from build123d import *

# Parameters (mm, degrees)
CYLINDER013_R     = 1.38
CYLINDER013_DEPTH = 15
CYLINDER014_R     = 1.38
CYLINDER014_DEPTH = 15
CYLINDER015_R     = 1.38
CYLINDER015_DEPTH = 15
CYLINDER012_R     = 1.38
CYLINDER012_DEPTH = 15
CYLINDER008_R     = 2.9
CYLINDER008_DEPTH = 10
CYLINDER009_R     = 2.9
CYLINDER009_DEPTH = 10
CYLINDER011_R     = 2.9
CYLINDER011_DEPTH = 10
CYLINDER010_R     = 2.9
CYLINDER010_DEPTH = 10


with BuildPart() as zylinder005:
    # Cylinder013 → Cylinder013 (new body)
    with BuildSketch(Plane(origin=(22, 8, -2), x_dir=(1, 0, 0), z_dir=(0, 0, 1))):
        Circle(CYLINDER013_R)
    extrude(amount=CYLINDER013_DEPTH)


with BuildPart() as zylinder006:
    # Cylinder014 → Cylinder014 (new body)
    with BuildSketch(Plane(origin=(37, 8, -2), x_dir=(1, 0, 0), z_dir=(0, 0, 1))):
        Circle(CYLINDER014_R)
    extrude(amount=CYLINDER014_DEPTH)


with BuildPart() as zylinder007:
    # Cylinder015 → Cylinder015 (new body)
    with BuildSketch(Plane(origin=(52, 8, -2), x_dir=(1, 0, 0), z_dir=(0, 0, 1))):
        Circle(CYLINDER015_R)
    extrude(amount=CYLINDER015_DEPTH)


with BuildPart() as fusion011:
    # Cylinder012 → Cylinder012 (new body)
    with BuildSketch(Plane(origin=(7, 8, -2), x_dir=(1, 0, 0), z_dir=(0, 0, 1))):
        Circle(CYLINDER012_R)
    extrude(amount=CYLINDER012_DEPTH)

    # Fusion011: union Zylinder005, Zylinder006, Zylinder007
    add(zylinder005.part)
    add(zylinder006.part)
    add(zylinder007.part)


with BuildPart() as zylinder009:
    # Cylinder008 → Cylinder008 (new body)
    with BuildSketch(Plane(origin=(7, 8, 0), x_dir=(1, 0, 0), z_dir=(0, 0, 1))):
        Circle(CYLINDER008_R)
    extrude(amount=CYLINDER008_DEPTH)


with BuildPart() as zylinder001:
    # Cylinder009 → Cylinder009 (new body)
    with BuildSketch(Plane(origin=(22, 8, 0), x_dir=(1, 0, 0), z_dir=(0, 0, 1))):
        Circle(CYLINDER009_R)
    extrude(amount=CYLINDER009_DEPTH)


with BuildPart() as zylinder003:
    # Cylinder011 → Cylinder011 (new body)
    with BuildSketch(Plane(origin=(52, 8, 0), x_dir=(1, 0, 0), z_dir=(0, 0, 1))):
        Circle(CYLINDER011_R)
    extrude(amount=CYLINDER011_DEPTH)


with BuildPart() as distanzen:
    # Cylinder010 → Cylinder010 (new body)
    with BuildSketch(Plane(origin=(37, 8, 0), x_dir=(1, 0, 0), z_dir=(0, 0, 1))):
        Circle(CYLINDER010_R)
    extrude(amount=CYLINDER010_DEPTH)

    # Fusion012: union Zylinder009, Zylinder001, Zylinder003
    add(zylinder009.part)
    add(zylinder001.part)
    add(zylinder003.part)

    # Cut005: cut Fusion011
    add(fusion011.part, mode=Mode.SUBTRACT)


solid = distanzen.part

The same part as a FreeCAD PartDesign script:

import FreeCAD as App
import Part
import Sketcher

doc = App.newDocument("Part")
params = doc.addObject("Spreadsheet::Sheet", "Params")
for row, (alias, value) in enumerate([
    ("sketch1_diameter", "2.76 mm"),
    ("pad1_length", "15 mm"),
    ("sketch2_diameter", "2.76 mm"),
    ("pad2_length", "15 mm"),
    ("sketch3_diameter", "2.76 mm"),
    ("pad3_length", "15 mm"),
    ("sketch4_diameter", "2.76 mm"),
    ("pad4_length", "15 mm"),
    ("sketch5_diameter", "5.8 mm"),
    ("pad5_length", "10 mm"),
    ("sketch6_diameter", "5.8 mm"),
    ("pad6_length", "10 mm"),
    ("sketch7_diameter", "5.8 mm"),
    ("pad7_length", "10 mm"),
    ("sketch8_diameter", "5.8 mm"),
    ("pad8_length", "10 mm"),
], start=1):
    params.set(f"A{row}", alias)
    params.set(f"B{row}", "=" + value)
    params.setAlias(f"B{row}", alias)

body = doc.addObject("PartDesign::Body", "Body")

# Sketch on XY plane
sketch1 = body.newObject("Sketcher::SketchObject", "Sketch")
sketch1.AttachmentSupport = (doc.getObject("XY_Plane"), [""])
sketch1.MapMode = "FlatFace"
sketch1.AttachmentOffset = App.Placement(App.Vector(0, 0, -2), App.Rotation())
sketch1.addGeometry(Part.Circle(App.Vector(22, 8, 0), App.Vector(0, 0, 1), 1.38), False)
sketch1.addConstraint([
    Sketcher.Constraint("Diameter", 0, 2.76),
    Sketcher.Constraint("DistanceX", -1, 1, 0, 3, 22.0),
    Sketcher.Constraint("DistanceY", -1, 1, 0, 3, 8.0),
])
sketch1.setExpression("Constraints[0]", "Params.sketch1_diameter")
pad1 = body.newObject("PartDesign::Pad", "Pad")
pad1.Profile = sketch1
pad1.setExpression("Length", "Params.pad1_length")
body2 = doc.addObject("PartDesign::Body", "Body001")

# Sketch on XY plane
sketch2 = body2.newObject("Sketcher::SketchObject", "Sketch001")
sketch2.AttachmentSupport = (doc.getObject("XY_Plane001"), [""])
sketch2.MapMode = "FlatFace"
sketch2.AttachmentOffset = App.Placement(App.Vector(0, 0, -2), App.Rotation())
sketch2.addGeometry(Part.Circle(App.Vector(37, 8, 0), App.Vector(0, 0, 1), 1.38), False)
sketch2.addConstraint([
    Sketcher.Constraint("Diameter", 0, 2.76),
    Sketcher.Constraint("DistanceX", -1, 1, 0, 3, 37.0),
    Sketcher.Constraint("DistanceY", -1, 1, 0, 3, 8.0),
])
sketch2.setExpression("Constraints[0]", "Params.sketch2_diameter")
pad2 = body2.newObject("PartDesign::Pad", "Pad001")
pad2.Profile = sketch2
pad2.setExpression("Length", "Params.pad2_length")
body3 = doc.addObject("PartDesign::Body", "Body002")

# Sketch on XY plane
sketch3 = body3.newObject("Sketcher::SketchObject", "Sketch002")
sketch3.AttachmentSupport = (doc.getObject("XY_Plane002"), [""])
sketch3.MapMode = "FlatFace"
sketch3.AttachmentOffset = App.Placement(App.Vector(0, 0, -2), App.Rotation())
sketch3.addGeometry(Part.Circle(App.Vector(52, 8, 0), App.Vector(0, 0, 1), 1.38), False)
sketch3.addConstraint([
    Sketcher.Constraint("Diameter", 0, 2.76),
    Sketcher.Constraint("DistanceX", -1, 1, 0, 3, 52.0),
    Sketcher.Constraint("DistanceY", -1, 1, 0, 3, 8.0),
])
sketch3.setExpression("Constraints[0]", "Params.sketch3_diameter")
pad3 = body3.newObject("PartDesign::Pad", "Pad002")
pad3.Profile = sketch3
pad3.setExpression("Length", "Params.pad3_length")
body4 = doc.addObject("PartDesign::Body", "Body003")
body4.AllowCompound = True

# Sketch on XY plane
sketch4 = body4.newObject("Sketcher::SketchObject", "Sketch003")
sketch4.AttachmentSupport = (doc.getObject("XY_Plane003"), [""])
sketch4.MapMode = "FlatFace"
sketch4.AttachmentOffset = App.Placement(App.Vector(0, 0, -2), App.Rotation())
sketch4.addGeometry(Part.Circle(App.Vector(7, 8, 0), App.Vector(0, 0, 1), 1.38), False)
sketch4.addConstraint([
    Sketcher.Constraint("Diameter", 0, 2.76),
    Sketcher.Constraint("DistanceX", -1, 1, 0, 3, 7.0),
    Sketcher.Constraint("DistanceY", -1, 1, 0, 3, 8.0),
])
sketch4.setExpression("Constraints[0]", "Params.sketch4_diameter")
pad4 = body4.newObject("PartDesign::Pad", "Pad003")
pad4.Profile = sketch4
pad4.setExpression("Length", "Params.pad4_length")
doc.recompute()

boolean = body4.newObject("PartDesign::Boolean", "Boolean")
boolean.Type = "Fuse"
boolean.addObjects([body])
doc.recompute()

boolean2 = body4.newObject("PartDesign::Boolean", "Boolean001")
boolean2.Type = "Fuse"
boolean2.addObjects([body2])
doc.recompute()

boolean3 = body4.newObject("PartDesign::Boolean", "Boolean002")
boolean3.Type = "Fuse"
boolean3.addObjects([body3])
body5 = doc.addObject("PartDesign::Body", "Body004")

# Sketch on XY plane
sketch5 = body5.newObject("Sketcher::SketchObject", "Sketch004")
sketch5.AttachmentSupport = (doc.getObject("XY_Plane004"), [""])
sketch5.MapMode = "FlatFace"
sketch5.addGeometry(Part.Circle(App.Vector(7, 8, 0), App.Vector(0, 0, 1), 2.9), False)
sketch5.addConstraint([
    Sketcher.Constraint("Diameter", 0, 5.8),
    Sketcher.Constraint("DistanceX", -1, 1, 0, 3, 7.0),
    Sketcher.Constraint("DistanceY", -1, 1, 0, 3, 8.0),
])
sketch5.setExpression("Constraints[0]", "Params.sketch5_diameter")
pad5 = body5.newObject("PartDesign::Pad", "Pad004")
pad5.Profile = sketch5
pad5.setExpression("Length", "Params.pad5_length")
body6 = doc.addObject("PartDesign::Body", "Body005")

# Sketch on XY plane
sketch6 = body6.newObject("Sketcher::SketchObject", "Sketch005")
sketch6.AttachmentSupport = (doc.getObject("XY_Plane005"), [""])
sketch6.MapMode = "FlatFace"
sketch6.addGeometry(Part.Circle(App.Vector(22, 8, 0), App.Vector(0, 0, 1), 2.9), False)
sketch6.addConstraint([
    Sketcher.Constraint("Diameter", 0, 5.8),
    Sketcher.Constraint("DistanceX", -1, 1, 0, 3, 22.0),
    Sketcher.Constraint("DistanceY", -1, 1, 0, 3, 8.0),
])
sketch6.setExpression("Constraints[0]", "Params.sketch6_diameter")
pad6 = body6.newObject("PartDesign::Pad", "Pad005")
pad6.Profile = sketch6
pad6.setExpression("Length", "Params.pad6_length")
body7 = doc.addObject("PartDesign::Body", "Body006")

# Sketch on XY plane
sketch7 = body7.newObject("Sketcher::SketchObject", "Sketch006")
sketch7.AttachmentSupport = (doc.getObject("XY_Plane006"), [""])
sketch7.MapMode = "FlatFace"
sketch7.addGeometry(Part.Circle(App.Vector(52, 8, 0), App.Vector(0, 0, 1), 2.9), False)
sketch7.addConstraint([
    Sketcher.Constraint("Diameter", 0, 5.8),
    Sketcher.Constraint("DistanceX", -1, 1, 0, 3, 52.0),
    Sketcher.Constraint("DistanceY", -1, 1, 0, 3, 8.0),
])
sketch7.setExpression("Constraints[0]", "Params.sketch7_diameter")
pad7 = body7.newObject("PartDesign::Pad", "Pad006")
pad7.Profile = sketch7
pad7.setExpression("Length", "Params.pad7_length")
body8 = doc.addObject("PartDesign::Body", "Body007")
body8.AllowCompound = True

# Sketch on XY plane
sketch8 = body8.newObject("Sketcher::SketchObject", "Sketch007")
sketch8.AttachmentSupport = (doc.getObject("XY_Plane007"), [""])
sketch8.MapMode = "FlatFace"
sketch8.addGeometry(Part.Circle(App.Vector(37, 8, 0), App.Vector(0, 0, 1), 2.9), False)
sketch8.addConstraint([
    Sketcher.Constraint("Diameter", 0, 5.8),
    Sketcher.Constraint("DistanceX", -1, 1, 0, 3, 37.0),
    Sketcher.Constraint("DistanceY", -1, 1, 0, 3, 8.0),
])
sketch8.setExpression("Constraints[0]", "Params.sketch8_diameter")
pad8 = body8.newObject("PartDesign::Pad", "Pad007")
pad8.Profile = sketch8
pad8.setExpression("Length", "Params.pad8_length")
doc.recompute()

boolean4 = body8.newObject("PartDesign::Boolean", "Boolean003")
boolean4.Type = "Fuse"
boolean4.addObjects([body5])
doc.recompute()

boolean5 = body8.newObject("PartDesign::Boolean", "Boolean004")
boolean5.Type = "Fuse"
boolean5.addObjects([body6])
doc.recompute()

boolean6 = body8.newObject("PartDesign::Boolean", "Boolean005")
boolean6.Type = "Fuse"
boolean6.addObjects([body7])
doc.recompute()

boolean7 = body8.newObject("PartDesign::Boolean", "Boolean006")
boolean7.Type = "Cut"
boolean7.addObjects([body4])

doc.recompute()
